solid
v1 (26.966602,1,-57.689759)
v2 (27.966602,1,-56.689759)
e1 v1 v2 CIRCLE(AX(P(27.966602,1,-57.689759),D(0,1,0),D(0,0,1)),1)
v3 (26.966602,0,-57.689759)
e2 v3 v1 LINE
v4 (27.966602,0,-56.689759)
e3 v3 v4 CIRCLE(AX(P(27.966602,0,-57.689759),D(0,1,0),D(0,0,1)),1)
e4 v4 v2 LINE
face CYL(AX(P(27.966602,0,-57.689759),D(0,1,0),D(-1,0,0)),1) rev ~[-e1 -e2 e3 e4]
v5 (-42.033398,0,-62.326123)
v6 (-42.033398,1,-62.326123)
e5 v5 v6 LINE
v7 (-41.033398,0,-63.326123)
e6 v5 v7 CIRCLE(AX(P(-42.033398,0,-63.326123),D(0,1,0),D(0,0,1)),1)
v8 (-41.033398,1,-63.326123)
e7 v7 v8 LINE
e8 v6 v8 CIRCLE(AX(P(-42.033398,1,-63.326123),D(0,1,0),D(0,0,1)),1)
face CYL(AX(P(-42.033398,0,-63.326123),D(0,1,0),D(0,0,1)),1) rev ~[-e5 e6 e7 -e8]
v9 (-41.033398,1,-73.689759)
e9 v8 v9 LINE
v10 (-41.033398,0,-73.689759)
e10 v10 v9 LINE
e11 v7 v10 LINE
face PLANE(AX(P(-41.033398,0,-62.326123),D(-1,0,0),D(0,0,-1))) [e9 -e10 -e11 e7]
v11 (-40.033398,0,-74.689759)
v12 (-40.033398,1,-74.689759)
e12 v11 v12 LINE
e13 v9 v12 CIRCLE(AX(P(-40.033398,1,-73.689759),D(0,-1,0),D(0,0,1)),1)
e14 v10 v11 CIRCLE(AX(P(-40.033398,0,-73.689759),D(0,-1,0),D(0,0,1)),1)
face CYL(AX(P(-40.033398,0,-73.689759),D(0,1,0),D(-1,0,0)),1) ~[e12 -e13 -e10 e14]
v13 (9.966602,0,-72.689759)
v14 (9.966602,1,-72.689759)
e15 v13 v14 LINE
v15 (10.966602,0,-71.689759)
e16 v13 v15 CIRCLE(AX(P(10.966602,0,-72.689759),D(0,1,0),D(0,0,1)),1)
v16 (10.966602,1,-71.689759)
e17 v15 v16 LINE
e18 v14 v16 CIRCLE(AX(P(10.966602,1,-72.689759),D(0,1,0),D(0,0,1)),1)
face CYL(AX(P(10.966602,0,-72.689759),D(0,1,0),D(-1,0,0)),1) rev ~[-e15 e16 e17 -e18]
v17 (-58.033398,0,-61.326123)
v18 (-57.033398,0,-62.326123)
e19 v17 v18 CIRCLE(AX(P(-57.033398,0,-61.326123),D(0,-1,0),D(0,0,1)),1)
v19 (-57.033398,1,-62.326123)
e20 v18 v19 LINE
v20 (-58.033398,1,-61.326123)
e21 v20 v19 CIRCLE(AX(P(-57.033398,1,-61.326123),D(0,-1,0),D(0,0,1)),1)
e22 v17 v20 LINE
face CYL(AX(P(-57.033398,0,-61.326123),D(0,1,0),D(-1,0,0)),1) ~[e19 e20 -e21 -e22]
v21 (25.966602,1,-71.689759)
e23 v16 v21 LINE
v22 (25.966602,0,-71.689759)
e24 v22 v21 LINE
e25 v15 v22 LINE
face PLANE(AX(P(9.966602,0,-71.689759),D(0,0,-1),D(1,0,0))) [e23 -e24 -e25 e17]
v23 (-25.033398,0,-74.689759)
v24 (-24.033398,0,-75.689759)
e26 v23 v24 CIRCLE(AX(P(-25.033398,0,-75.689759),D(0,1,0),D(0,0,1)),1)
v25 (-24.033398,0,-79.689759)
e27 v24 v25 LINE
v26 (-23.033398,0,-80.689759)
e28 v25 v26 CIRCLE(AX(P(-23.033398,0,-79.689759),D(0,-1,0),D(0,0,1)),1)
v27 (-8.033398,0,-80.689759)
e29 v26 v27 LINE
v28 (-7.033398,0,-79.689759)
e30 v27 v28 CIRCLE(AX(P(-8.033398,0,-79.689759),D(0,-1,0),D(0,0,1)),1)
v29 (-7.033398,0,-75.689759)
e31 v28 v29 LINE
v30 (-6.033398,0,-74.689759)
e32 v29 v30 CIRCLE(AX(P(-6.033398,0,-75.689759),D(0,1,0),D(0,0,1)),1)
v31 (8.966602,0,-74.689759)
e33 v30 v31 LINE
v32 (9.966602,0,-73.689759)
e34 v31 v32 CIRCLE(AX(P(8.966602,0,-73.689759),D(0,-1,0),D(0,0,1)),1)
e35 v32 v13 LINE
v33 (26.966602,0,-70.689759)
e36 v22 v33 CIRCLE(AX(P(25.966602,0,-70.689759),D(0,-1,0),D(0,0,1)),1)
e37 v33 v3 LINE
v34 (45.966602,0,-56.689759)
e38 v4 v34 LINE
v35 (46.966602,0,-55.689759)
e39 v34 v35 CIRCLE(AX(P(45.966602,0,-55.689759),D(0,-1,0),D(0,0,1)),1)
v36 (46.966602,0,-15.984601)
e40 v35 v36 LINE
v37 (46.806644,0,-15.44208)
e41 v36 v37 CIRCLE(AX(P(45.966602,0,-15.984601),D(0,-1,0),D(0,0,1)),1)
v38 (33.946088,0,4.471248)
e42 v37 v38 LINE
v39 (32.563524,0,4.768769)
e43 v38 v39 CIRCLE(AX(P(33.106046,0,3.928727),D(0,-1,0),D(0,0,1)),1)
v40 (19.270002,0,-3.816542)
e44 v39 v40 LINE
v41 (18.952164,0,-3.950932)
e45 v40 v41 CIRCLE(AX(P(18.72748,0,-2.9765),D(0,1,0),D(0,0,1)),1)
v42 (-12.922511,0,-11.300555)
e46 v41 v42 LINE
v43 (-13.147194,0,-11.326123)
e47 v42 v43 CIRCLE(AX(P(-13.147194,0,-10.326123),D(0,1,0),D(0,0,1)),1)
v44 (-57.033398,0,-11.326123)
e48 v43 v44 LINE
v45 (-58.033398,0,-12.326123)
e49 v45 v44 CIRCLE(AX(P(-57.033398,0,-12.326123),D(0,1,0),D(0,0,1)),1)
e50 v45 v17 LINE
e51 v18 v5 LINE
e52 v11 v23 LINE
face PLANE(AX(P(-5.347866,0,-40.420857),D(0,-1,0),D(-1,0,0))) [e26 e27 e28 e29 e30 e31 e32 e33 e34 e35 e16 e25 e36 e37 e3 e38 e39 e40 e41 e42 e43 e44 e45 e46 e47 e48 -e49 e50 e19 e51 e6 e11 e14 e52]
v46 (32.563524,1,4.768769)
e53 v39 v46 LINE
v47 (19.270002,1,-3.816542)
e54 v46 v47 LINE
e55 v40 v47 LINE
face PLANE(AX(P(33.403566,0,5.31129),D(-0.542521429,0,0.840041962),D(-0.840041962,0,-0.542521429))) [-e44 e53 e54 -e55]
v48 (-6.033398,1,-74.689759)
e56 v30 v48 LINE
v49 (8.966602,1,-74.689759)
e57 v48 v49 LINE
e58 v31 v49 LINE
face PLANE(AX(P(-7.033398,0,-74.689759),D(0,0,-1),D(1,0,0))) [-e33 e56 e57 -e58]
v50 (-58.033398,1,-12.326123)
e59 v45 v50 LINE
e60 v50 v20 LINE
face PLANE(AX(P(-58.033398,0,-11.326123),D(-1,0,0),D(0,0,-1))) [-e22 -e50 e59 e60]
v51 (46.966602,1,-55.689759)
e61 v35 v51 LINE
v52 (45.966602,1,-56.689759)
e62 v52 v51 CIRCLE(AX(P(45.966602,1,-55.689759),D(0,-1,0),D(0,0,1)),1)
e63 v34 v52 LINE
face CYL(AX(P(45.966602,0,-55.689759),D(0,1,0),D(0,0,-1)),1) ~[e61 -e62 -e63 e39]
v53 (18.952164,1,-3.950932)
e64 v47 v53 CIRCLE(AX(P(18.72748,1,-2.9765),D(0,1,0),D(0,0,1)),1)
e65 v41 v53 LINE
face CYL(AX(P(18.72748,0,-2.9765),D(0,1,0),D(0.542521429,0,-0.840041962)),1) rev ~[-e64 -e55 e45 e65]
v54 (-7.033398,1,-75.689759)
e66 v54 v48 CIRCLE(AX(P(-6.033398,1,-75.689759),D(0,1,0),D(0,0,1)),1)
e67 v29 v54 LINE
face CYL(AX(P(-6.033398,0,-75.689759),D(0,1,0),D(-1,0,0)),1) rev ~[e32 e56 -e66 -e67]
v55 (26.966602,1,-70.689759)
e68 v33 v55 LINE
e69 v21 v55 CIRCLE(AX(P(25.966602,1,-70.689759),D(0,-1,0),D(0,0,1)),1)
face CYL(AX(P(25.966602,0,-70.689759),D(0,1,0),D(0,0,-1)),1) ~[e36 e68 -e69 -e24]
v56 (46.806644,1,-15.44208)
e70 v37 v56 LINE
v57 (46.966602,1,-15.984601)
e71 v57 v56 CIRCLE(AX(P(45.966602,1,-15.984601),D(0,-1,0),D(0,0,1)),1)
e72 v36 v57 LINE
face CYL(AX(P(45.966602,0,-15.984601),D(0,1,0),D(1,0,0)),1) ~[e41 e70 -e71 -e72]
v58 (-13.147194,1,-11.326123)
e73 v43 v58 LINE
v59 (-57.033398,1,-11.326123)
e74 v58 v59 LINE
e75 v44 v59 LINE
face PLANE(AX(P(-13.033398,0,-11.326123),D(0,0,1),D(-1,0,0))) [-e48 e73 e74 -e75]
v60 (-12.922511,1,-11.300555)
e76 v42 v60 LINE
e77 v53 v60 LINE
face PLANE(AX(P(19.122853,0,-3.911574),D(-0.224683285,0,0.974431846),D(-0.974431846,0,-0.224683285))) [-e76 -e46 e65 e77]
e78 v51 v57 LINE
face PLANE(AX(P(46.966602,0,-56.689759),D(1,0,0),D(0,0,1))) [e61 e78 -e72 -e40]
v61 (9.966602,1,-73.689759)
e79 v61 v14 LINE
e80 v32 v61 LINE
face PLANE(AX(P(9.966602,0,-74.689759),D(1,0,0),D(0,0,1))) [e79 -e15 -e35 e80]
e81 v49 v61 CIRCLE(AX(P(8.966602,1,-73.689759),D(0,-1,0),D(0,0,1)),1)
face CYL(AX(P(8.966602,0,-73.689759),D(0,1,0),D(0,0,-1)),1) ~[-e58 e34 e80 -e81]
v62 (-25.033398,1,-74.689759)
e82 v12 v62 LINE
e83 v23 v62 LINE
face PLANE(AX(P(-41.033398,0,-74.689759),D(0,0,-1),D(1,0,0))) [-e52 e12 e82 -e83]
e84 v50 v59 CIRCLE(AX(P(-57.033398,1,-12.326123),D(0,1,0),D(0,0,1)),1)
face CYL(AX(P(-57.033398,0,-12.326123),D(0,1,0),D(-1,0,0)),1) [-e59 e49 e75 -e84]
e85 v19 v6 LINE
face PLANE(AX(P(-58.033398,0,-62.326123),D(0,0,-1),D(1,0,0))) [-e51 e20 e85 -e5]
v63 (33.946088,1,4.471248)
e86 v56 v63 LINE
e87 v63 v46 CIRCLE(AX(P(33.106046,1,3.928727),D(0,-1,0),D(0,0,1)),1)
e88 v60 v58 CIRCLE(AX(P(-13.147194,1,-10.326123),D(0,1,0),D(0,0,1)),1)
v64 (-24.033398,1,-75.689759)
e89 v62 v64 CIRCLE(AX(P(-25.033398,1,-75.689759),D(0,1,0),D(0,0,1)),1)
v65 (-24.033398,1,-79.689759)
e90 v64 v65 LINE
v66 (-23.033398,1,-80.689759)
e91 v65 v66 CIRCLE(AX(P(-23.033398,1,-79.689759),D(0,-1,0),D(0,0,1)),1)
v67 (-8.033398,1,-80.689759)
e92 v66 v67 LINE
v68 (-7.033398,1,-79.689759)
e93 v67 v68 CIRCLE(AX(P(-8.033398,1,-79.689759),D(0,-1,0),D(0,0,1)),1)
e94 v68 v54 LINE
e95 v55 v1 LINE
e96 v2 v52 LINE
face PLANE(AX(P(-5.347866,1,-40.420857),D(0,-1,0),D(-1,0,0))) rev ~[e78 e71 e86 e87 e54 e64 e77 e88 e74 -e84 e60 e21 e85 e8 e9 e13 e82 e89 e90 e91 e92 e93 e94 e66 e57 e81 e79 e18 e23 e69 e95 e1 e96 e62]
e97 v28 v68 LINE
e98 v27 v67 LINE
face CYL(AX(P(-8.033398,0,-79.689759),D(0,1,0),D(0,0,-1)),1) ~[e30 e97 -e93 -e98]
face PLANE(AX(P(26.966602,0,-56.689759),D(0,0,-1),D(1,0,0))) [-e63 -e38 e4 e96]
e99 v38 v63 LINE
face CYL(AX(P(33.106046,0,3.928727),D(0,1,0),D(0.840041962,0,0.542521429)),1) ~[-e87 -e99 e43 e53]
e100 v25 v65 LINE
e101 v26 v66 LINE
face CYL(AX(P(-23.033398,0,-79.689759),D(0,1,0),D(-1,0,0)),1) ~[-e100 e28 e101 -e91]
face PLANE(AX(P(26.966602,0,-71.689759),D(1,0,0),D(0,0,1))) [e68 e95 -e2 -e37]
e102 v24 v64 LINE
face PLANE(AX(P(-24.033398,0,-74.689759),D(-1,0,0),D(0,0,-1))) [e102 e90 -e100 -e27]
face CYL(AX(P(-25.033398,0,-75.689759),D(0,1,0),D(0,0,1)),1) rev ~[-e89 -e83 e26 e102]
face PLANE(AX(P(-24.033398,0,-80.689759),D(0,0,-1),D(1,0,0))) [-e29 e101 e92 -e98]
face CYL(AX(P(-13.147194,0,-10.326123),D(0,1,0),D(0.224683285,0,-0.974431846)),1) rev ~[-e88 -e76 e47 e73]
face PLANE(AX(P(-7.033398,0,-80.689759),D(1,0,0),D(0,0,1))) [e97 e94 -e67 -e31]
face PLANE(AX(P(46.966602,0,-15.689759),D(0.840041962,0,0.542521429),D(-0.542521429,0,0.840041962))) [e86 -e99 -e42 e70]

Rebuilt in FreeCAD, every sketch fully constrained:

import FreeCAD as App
import Part
import Sketcher

V = App.Vector


def edges_at(feature, points):
    """Names of the edges that pass closest to the given points."""
    edges = feature.Shape.Edges
    near = lambda p: min(range(len(edges)), key=lambda i: edges[i].distToShape(Part.Vertex(*p))[0])
    return sorted({f"Edge{near(p) + 1}" for p in points})

doc = App.newDocument("Part")
body = doc.addObject("PartDesign::Body", "Body")

sketch1 = body.newObject("Sketcher::SketchObject", "Sketch")
sketch1.AttachmentSupport = (doc.getObject("XZ_Plane"), [""])
sketch1.MapMode = "FlatFace"
sketch1.addGeometry(Part.LineSegment(V(-58.033398, -62.326123, 0), V(-58.033398, -11.326123, 0)), False)
sketch1.addGeometry(Part.LineSegment(V(-58.033398, -11.326123, 0), V(-13.033398, -11.326123, 0)), False)
sketch1.addGeometry(Part.LineSegment(V(-13.033398, -11.326123, 0), V(19.122853, -3.911574, 0)), False)
sketch1.addGeometry(Part.LineSegment(V(19.122853, -3.911574, 0), V(33.403566, 5.31129, 0)), False)
sketch1.addGeometry(Part.LineSegment(V(33.403566, 5.31129, 0), V(46.966602, -15.689759, 0)), False)
sketch1.addGeometry(Part.LineSegment(V(46.966602, -15.689759, 0), V(46.966602, -56.689759, 0)), False)
sketch1.addGeometry(Part.LineSegment(V(46.966602, -56.689759, 0), V(26.966602, -56.689759, 0)), False)
sketch1.addGeometry(Part.LineSegment(V(26.966602, -56.689759, 0), V(26.966602, -71.689759, 0)), False)
sketch1.addGeometry(Part.LineSegment(V(26.966602, -71.689759, 0), V(9.966602, -71.689759, 0)), False)
sketch1.addGeometry(Part.LineSegment(V(9.966602, -71.689759, 0), V(9.966602, -74.689759, 0)), False)
sketch1.addGeometry(Part.LineSegment(V(9.966602, -74.689759, 0), V(-7.033398, -74.689759, 0)), False)
sketch1.addGeometry(Part.LineSegment(V(-7.033398, -74.689759, 0), V(-7.033398, -80.689759, 0)), False)
sketch1.addGeometry(Part.LineSegment(V(-7.033398, -80.689759, 0), V(-24.033398, -80.689759, 0)), False)
sketch1.addGeometry(Part.LineSegment(V(-24.033398, -80.689759, 0), V(-24.033398, -74.689759, 0)), False)
sketch1.addGeometry(Part.LineSegment(V(-24.033398, -74.689759, 0), V(-41.033398, -74.689759, 0)), False)
sketch1.addGeometry(Part.LineSegment(V(-41.033398, -74.689759, 0), V(-41.033398, -62.326123, 0)), False)
sketch1.addGeometry(Part.LineSegment(V(-41.033398, -62.326123, 0), V(-58.033398, -62.326123, 0)), False)
sketch1.addConstraint(Sketcher.Constraint("Coincident", 0, 2, 1, 1))
sketch1.addConstraint(Sketcher.Constraint("Coincident", 1, 2, 2, 1))
sketch1.addConstraint(Sketcher.Constraint("Coincident", 2, 2, 3, 1))
sketch1.addConstraint(Sketcher.Constraint("Coincident", 3, 2, 4, 1))
sketch1.addConstraint(Sketcher.Constraint("Coincident", 4, 2, 5, 1))
sketch1.addConstraint(Sketcher.Constraint("Coincident", 5, 2, 6, 1))
sketch1.addConstraint(Sketcher.Constraint("Coincident", 6, 2, 7, 1))
sketch1.addConstraint(Sketcher.Constraint("Coincident", 7, 2, 8, 1))
sketch1.addConstraint(Sketcher.Constraint("Coincident", 8, 2, 9, 1))
sketch1.addConstraint(Sketcher.Constraint("Coincident", 9, 2, 10, 1))
sketch1.addConstraint(Sketcher.Constraint("Coincident", 10, 2, 11, 1))
sketch1.addConstraint(Sketcher.Constraint("Coincident", 11, 2, 12, 1))
sketch1.addConstraint(Sketcher.Constraint("Coincident", 12, 2, 13, 1))
sketch1.addConstraint(Sketcher.Constraint("Coincident", 13, 2, 14, 1))
sketch1.addConstraint(Sketcher.Constraint("Coincident", 14, 2, 15, 1))
sketch1.addConstraint(Sketcher.Constraint("Coincident", 15, 2, 16, 1))
sketch1.addConstraint(Sketcher.Constraint("Coincident", 16, 2, 0, 1))
sketch1.addConstraint(Sketcher.Constraint("Vertical", 0))
sketch1.addConstraint(Sketcher.Constraint("Horizontal", 1))
sketch1.addConstraint(Sketcher.Constraint("Vertical", 5))
sketch1.addConstraint(Sketcher.Constraint("Horizontal", 6))
sketch1.addConstraint(Sketcher.Constraint("Vertical", 7))
sketch1.addConstraint(Sketcher.Constraint("Horizontal", 8))
sketch1.addConstraint(Sketcher.Constraint("Vertical", 9))
sketch1.addConstraint(Sketcher.Constraint("Horizontal", 10))
sketch1.addConstraint(Sketcher.Constraint("Vertical", 11))
sketch1.addConstraint(Sketcher.Constraint("Horizontal", 12))
sketch1.addConstraint(Sketcher.Constraint("Vertical", 13))
sketch1.addConstraint(Sketcher.Constraint("Horizontal", 14))
sketch1.addConstraint(Sketcher.Constraint("Vertical", 15))
sketch1.addConstraint(Sketcher.Constraint("Horizontal", 16))
sketch1.addConstraint(Sketcher.Constraint("Perpendicular", 3, 4))
sketch1.addConstraint(Sketcher.Constraint("Horizontal", 10, 2, 13, 2))
sketch1.addConstraint(Sketcher.Constraint("Equal", 8, 10))
sketch1.addConstraint(Sketcher.Constraint("Equal", 10, 12))
sketch1.addConstraint(Sketcher.Constraint("Equal", 12, 14))
sketch1.addConstraint(Sketcher.Constraint("Equal", 14, 16))
sketch1.addConstraint(Sketcher.Constraint("DistanceX", 1, 1, 1, 2, 45.0))
sketch1.addConstraint(Sketcher.Constraint("DistanceX", 6, 2, 6, 1, 20.0))
sketch1.addConstraint(Sketcher.Constraint("DistanceX", 8, 2, 8, 1, 17.0))
sketch1.addConstraint(Sketcher.Constraint("DistanceY", 0, 1, 0, 2, 51.0))
sketch1.addConstraint(Sketcher.Constraint("DistanceY", 5, 2, 5, 1, 41.0))
sketch1.addConstraint(Sketcher.Constraint("DistanceY", 7, 2, 7, 1, 15.0))
sketch1.addConstraint(Sketcher.Constraint("DistanceY", 9, 2, 9, 1, 3.0))
sketch1.addConstraint(Sketcher.Constraint("DistanceY", 11, 2, 11, 1, 6.0))
sketch1.addConstraint(Sketcher.Constraint("Distance", 2, 33.0))
sketch1.addConstraint(Sketcher.Constraint("Distance", 3, 17.0))
sketch1.addConstraint(Sketcher.Constraint("Distance", 4, 25.0))
sketch1.addConstraint(Sketcher.Constraint("DistanceY", 15, 1, 15, 2, 12.363636))
sketch1.addConstraint(Sketcher.Constraint("DistanceY", -1, 1, 3, 2, 5.31129))
sketch1.addConstraint(Sketcher.Constraint("DistanceX", 0, 2, -1, 1, 58.033398))
pad1 = body.newObject("PartDesign::Pad", "Pad")
pad1.Profile = sketch1
pad1.Length = 1
pad1.Reversed = True
doc.recompute()

fillet = body.newObject("PartDesign::Fillet", "Fillet")
fillet.Base = (pad1, edges_at(pad1, [
    (-58.033, 0.5, -11.326),
    (-58.033, 0.5, -62.326),
    (-41.033, 0.5, -62.326),
    (-41.033, 0.5, -74.69),
    (-24.033, 0.5, -74.69),
    (-24.033, 0.5, -80.69),
    (-7.033, 0.5, -80.69),
    (-7.033, 0.5, -74.69),
    (9.967, 0.5, -74.69),
    (9.967, 0.5, -71.69),
    (26.967, 0.5, -71.69),
    (26.967, 0.5, -56.69),
    (46.967, 0.5, -56.69),
    (46.967, 0.5, -15.69),
    (33.404, 0.5, 5.311),
    (19.123, 0.5, -3.912),
    (-13.033, 0.5, -11.326),
]))
fillet.Radius = 1

doc.recompute()
